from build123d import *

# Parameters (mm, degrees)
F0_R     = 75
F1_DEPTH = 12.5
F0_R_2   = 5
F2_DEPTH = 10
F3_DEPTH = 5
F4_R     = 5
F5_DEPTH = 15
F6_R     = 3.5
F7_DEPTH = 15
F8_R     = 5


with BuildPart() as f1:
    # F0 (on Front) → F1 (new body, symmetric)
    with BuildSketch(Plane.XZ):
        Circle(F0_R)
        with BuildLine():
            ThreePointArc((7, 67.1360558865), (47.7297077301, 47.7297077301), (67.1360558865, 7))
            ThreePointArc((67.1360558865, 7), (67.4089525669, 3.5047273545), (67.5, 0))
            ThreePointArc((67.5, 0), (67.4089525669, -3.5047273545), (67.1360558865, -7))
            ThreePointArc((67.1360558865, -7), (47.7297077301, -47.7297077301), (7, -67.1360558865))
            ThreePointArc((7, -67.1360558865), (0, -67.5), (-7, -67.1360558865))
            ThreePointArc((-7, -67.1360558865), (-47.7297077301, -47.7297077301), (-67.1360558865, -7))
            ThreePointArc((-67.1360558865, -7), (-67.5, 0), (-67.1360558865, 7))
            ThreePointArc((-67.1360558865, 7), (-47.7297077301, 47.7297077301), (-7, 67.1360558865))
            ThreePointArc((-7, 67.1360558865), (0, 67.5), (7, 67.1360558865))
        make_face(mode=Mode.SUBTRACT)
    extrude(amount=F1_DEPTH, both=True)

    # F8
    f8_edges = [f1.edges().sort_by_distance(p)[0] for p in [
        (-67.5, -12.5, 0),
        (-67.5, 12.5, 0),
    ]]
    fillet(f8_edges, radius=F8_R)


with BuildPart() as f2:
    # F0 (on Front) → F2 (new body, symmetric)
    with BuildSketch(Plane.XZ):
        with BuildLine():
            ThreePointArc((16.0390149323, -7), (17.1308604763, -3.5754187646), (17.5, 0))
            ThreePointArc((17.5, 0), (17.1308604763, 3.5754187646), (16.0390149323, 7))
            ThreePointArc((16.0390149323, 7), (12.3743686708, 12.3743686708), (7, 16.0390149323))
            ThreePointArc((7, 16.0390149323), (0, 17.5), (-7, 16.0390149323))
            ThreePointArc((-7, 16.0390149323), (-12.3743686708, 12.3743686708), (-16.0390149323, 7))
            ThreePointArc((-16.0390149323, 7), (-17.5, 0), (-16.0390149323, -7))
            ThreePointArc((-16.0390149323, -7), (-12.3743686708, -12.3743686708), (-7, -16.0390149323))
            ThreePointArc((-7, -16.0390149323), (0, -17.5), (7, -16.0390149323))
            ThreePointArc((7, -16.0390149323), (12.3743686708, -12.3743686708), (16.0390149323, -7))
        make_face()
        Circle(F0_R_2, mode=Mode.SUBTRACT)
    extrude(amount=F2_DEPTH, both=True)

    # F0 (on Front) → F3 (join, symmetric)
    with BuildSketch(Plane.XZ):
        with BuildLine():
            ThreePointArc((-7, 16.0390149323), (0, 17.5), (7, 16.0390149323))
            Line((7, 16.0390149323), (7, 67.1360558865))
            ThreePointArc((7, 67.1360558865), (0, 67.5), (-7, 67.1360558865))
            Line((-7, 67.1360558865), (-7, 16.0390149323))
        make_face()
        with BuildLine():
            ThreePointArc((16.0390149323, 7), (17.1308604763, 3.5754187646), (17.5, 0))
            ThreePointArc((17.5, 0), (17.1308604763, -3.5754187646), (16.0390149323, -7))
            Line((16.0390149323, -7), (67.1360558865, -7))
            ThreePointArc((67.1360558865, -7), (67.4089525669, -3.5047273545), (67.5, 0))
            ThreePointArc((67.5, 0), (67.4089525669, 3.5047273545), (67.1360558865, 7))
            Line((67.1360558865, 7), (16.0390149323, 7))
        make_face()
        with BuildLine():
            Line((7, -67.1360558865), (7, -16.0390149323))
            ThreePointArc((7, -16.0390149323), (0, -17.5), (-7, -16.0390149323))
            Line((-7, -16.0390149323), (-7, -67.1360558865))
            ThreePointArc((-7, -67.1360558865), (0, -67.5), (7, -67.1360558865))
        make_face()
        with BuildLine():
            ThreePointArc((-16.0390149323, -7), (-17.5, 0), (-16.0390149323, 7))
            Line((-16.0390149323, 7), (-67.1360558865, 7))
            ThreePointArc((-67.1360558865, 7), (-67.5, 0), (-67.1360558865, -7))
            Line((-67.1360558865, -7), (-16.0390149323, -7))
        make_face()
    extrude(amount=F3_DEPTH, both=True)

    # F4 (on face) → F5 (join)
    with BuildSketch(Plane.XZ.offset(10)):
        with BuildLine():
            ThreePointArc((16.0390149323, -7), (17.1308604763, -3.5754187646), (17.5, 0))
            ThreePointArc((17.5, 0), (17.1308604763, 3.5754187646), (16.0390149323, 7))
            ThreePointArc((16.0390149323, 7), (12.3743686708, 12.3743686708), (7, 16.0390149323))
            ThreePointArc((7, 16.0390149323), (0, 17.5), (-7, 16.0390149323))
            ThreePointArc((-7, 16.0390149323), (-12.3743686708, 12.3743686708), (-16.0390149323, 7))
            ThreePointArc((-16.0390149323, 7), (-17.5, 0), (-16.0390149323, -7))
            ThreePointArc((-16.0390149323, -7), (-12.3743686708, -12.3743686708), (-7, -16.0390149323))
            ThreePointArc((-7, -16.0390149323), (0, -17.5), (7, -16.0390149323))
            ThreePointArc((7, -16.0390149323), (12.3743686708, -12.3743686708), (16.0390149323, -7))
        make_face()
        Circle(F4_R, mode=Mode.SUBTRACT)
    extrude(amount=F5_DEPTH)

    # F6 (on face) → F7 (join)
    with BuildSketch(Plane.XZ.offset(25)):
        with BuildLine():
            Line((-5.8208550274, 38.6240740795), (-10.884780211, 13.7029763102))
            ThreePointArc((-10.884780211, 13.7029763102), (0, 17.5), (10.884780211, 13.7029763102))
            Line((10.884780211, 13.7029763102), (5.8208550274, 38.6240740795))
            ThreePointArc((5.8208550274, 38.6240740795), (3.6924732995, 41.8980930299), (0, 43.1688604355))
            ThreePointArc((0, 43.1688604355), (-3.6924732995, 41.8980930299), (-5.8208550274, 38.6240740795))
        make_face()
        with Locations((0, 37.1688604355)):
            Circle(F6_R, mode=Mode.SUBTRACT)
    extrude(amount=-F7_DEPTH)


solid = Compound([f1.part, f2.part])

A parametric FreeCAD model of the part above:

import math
import FreeCAD as App
import Part
import Sketcher
from FreeCAD import Vector
Q = App.Units.Quantity


def edges_at(feature, points):
    """Names of the edges that pass closest to the given points."""
    edges = feature.Shape.Edges
    near = lambda p: min(range(len(edges)), key=lambda i: edges[i].distToShape(Part.Vertex(*p))[0])
    return sorted({f"Edge{near(p) + 1}" for p in points})

doc = App.newDocument("Part")
body = doc.addObject("PartDesign::Body", "Body")

# Sketch on XZ plane
sketch1 = body.newObject("Sketcher::SketchObject", "Sketch")
sketch1.AttachmentSupport = (doc.getObject("XZ_Plane"), [""])
sketch1.MapMode = "FlatFace"
sketch1.addGeometry(Part.Circle(Vector(0, 0, 0), Vector(0, 0, 1), 75), False)
sketch1.addGeometry(Part.ArcOfCircle(Part.Circle(Vector(0, 0, 0), Vector(0, 0, 1), 67), math.radians(84.05), math.radians(95.95)), False)
sketch1.addGeometry(Part.ArcOfCircle(Part.Circle(Vector(0, 0, 0), Vector(0, 0, 1), 68), math.radians(0), math.radians(84)), False)
sketch1.addGeometry(Part.ArcOfCircle(Part.Circle(Vector(0, 0, 0), Vector(0, 0, 1), 68), math.radians(-84), math.radians(0)), False)
sketch1.addGeometry(Part.ArcOfCircle(Part.Circle(Vector(0, 0, 0), Vector(0, 0, 1), 67), math.radians(-95.95), math.radians(-84.05)), False)
sketch1.addGeometry(Part.ArcOfCircle(Part.Circle(Vector(0, 0, 0), Vector(0, 0, 1), 68), math.radians(-174), math.radians(-96)), False)
sketch1.addGeometry(Part.ArcOfCircle(Part.Circle(Vector(0, 0, 0), Vector(0, 0, 1), 67), math.radians(174.05), math.radians(185.95)), False)
sketch1.addGeometry(Part.ArcOfCircle(Part.Circle(Vector(0, 0, 0), Vector(0, 0, 1), 68), math.radians(96), math.radians(174)), False)
sketch1.addConstraint(Sketcher.Constraint("Tangent", 1, 1, 2, 2))
sketch1.addConstraint(Sketcher.Constraint("Tangent", 2, 1, 3, 2))
sketch1.addConstraint(Sketcher.Constraint("Tangent", 3, 1, 4, 2))
sketch1.addConstraint(Sketcher.Constraint("Tangent", 4, 1, 5, 2))
sketch1.addConstraint(Sketcher.Constraint("Tangent", 5, 1, 6, 2))
sketch1.addConstraint(Sketcher.Constraint("Tangent", 6, 1, 7, 2))
sketch1.addConstraint(Sketcher.Constraint("Tangent", 7, 1, 1, 2))
sketch1.addConstraint(Sketcher.Constraint("Coincident", 0, 3, -1, 1))
sketch1.addConstraint(Sketcher.Constraint("Coincident", 1, 3, -1, 1))
sketch1.addConstraint(Sketcher.Constraint("Coincident", 3, 3, -1, 1))
sketch1.addConstraint(Sketcher.Constraint("Coincident", 5, 3, -1, 1))
sketch1.addConstraint(Sketcher.Constraint("PointOnObject", 2, 1, -1))
sketch1.addConstraint(Sketcher.Constraint("Horizontal", 3, 1, 4, 1))
sketch1.addConstraint(Sketcher.Constraint("Horizontal", 1, 1, 7, 1))
sketch1.addConstraint(Sketcher.Constraint("Vertical", 1, 1, 3, 1))
sketch1.addConstraint(Sketcher.Constraint("Vertical", 5, 1, 6, 1))
sketch1.addConstraint(Sketcher.Constraint("Diameter", 0, Q("150 mm")))
sketch1.addConstraint(Sketcher.Constraint("Radius", 1, Q("67.5 mm")))
sketch1.addConstraint(Sketcher.Constraint("DistanceX", -1, 1, 1, 1, Q("7 mm")))
sketch1.addConstraint(Sketcher.Constraint("DistanceY", 5, 1, -1, 1, Q("7 mm")))
pad1 = body.newObject("PartDesign::Pad", "Pad")
pad1.Profile = sketch1
pad1.Length = 25
pad1.Midplane = True
doc.recompute()

fillet = body.newObject("PartDesign::Fillet", "Fillet")
fillet.Base = (pad1, edges_at(pad1, [(-67.5, -12.5, 0), (-67.5, 12.5, 0)]))
fillet.Radius = 5
body2 = doc.addObject("PartDesign::Body", "Body001")

# Sketch on XZ plane
sketch2 = body2.newObject("Sketcher::SketchObject", "Sketch001")
sketch2.AttachmentSupport = (doc.getObject("XZ_Plane001"), [""])
sketch2.MapMode = "FlatFace"
sketch2.addGeometry(Part.ArcOfCircle(Part.Circle(Vector(0, 0, 0), Vector(0, 0, 1), 17), math.radians(-24), math.radians(0)), False)
sketch2.addGeometry(Part.ArcOfCircle(Part.Circle(Vector(0, 0, 0), Vector(0, 0, 1), 17), math.radians(0), math.radians(24)), False)
sketch2.addGeometry(Part.ArcOfCircle(Part.Circle(Vector(0, 0, 0), Vector(0, 0, 1), 17), math.radians(24), math.radians(66)), False)
sketch2.addGeometry(Part.ArcOfCircle(Part.Circle(Vector(0, 0, 0), Vector(0, 0, 1), 18), math.radians(66), math.radians(114)), False)
sketch2.addGeometry(Part.ArcOfCircle(Part.Circle(Vector(0, 0, 0), Vector(0, 0, 1), 17), math.radians(114), math.radians(156)), False)
sketch2.addGeometry(Part.ArcOfCircle(Part.Circle(Vector(0, 0, 0), Vector(0, 0, 1), 18), math.radians(156), math.radians(204)), False)
sketch2.addGeometry(Part.ArcOfCircle(Part.Circle(Vector(0, 0, 0), Vector(0, 0, 1), 17), math.radians(-156), math.radians(-114)), False)
sketch2.addGeometry(Part.ArcOfCircle(Part.Circle(Vector(0, 0, 0), Vector(0, 0, 1), 18), math.radians(-114), math.radians(-66)), False)
sketch2.addGeometry(Part.ArcOfCircle(Part.Circle(Vector(0, 0, 0), Vector(0, 0, 1), 17), math.radians(-66), math.radians(-24)), False)
sketch2.addGeometry(Part.Circle(Vector(0, 0, 0), Vector(0, 0, 1), 5), False)
sketch2.addConstraint(Sketcher.Constraint("Tangent", 0, 2, 1, 1))
sketch2.addConstraint(Sketcher.Constraint("Tangent", 1, 2, 2, 1))
sketch2.addConstraint(Sketcher.Constraint("Tangent", 2, 2, 3, 1))
sketch2.addConstraint(Sketcher.Constraint("Tangent", 3, 2, 4, 1))
sketch2.addConstraint(Sketcher.Constraint("Tangent", 4, 2, 5, 1))
sketch2.addConstraint(Sketcher.Constraint("Tangent", 5, 2, 6, 1))
sketch2.addConstraint(Sketcher.Constraint("Tangent", 6, 2, 7, 1))
sketch2.addConstraint(Sketcher.Constraint("Tangent", 7, 2, 8, 1))
sketch2.addConstraint(Sketcher.Constraint("Tangent", 8, 2, 0, 1))
sketch2.addConstraint(Sketcher.Constraint("Coincident", 0, 3, -1, 1))
sketch2.addConstraint(Sketcher.Constraint("Coincident", 2, 3, -1, 1))
sketch2.addConstraint(Sketcher.Constraint("Coincident", 4, 3, -1, 1))
sketch2.addConstraint(Sketcher.Constraint("Coincident", 6, 3, -1, 1))
sketch2.addConstraint(Sketcher.Constraint("Coincident", 9, 3, -1, 1))
sketch2.addConstraint(Sketcher.Constraint("PointOnObject", 0, 2, -1))
sketch2.addConstraint(Sketcher.Constraint("Horizontal", 2, 2, 3, 2))
sketch2.addConstraint(Sketcher.Constraint("Horizontal", 1, 2, 4, 2))
sketch2.addConstraint(Sketcher.Constraint("Horizontal", 6, 2, 7, 2))
sketch2.addConstraint(Sketcher.Constraint("Horizontal", 5, 2, 8, 2))
sketch2.addConstraint(Sketcher.Constraint("Vertical", 4, 2, 5, 2))
sketch2.addConstraint(Sketcher.Constraint("Vertical", 3, 2, 6, 2))
sketch2.addConstraint(Sketcher.Constraint("Diameter", 9, Q("10 mm")))
sketch2.addConstraint(Sketcher.Constraint("Radius", 0, Q("17.5 mm")))
sketch2.addConstraint(Sketcher.Constraint("DistanceY", -1, 1, 1, 2, Q("7 mm")))
sketch2.addConstraint(Sketcher.Constraint("DistanceX", -1, 1, 2, 2, Q("7 mm")))
pad2 = body2.newObject("PartDesign::Pad", "Pad001")
pad2.Profile = sketch2
pad2.Length = 20
pad2.Midplane = True

# Sketch on XZ plane
sketch3 = body2.newObject("Sketcher::SketchObject", "Sketch002")
sketch3.AttachmentSupport = (doc.getObject("XZ_Plane001"), [""])
sketch3.MapMode = "FlatFace"
sketch3.addGeometry(Part.ArcOfCircle(Part.Circle(Vector(0, 0, 0), Vector(0, 0, 1), 18), math.radians(66), math.radians(114)), False)
sketch3.addGeometry(Part.LineSegment(Vector(7, 16, 0), Vector(7, 67, 0)), False)
sketch3.addGeometry(Part.ArcOfCircle(Part.Circle(Vector(0, 0, 0), Vector(0, 0, 1), 67), math.radians(84.05), math.radians(95.95)), False)
sketch3.addGeometry(Part.LineSegment(Vector(-7, 67, 0), Vector(-7, 16, 0)), False)
sketch3.addGeometry(Part.ArcOfCircle(Part.Circle(Vector(0, 0, 0), Vector(0, 0, 1), 17), math.radians(0), math.radians(24)), False)
sketch3.addGeometry(Part.ArcOfCircle(Part.Circle(Vector(0, 0, 0), Vector(0, 0, 1), 17), math.radians(-24), math.radians(0)), False)
sketch3.addGeometry(Part.LineSegment(Vector(16, -7, 0), Vector(67, -7, 0)), False)
sketch3.addGeometry(Part.ArcOfCircle(Part.Circle(Vector(0, 0, 0), Vector(0, 0, 1), 68), math.radians(-5.95), math.radians(0)), False)
sketch3.addGeometry(Part.ArcOfCircle(Part.Circle(Vector(0, 0, 0), Vector(0, 0, 1), 68), math.radians(0), math.radians(5.95)), False)
sketch3.addGeometry(Part.LineSegment(Vector(67, 7, 0), Vector(16, 7, 0)), False)
sketch3.addGeometry(Part.LineSegment(Vector(7, -67, 0), Vector(7, -16, 0)), False)
sketch3.addGeometry(Part.ArcOfCircle(Part.Circle(Vector(0, 0, 0), Vector(0, 0, 1), 18), math.radians(-114), math.radians(-66)), False)
sketch3.addGeometry(Part.LineSegment(Vector(-7, -16, 0), Vector(-7, -67, 0)), False)
sketch3.addGeometry(Part.ArcOfCircle(Part.Circle(Vector(0, 0, 0), Vector(0, 0, 1), 67), math.radians(-95.95), math.radians(-84.05)), False)
sketch3.addGeometry(Part.ArcOfCircle(Part.Circle(Vector(0, 0, 0), Vector(0, 0, 1), 18), math.radians(156), math.radians(204)), False)
sketch3.addGeometry(Part.LineSegment(Vector(-16, 7, 0), Vector(-67, 7, 0)), False)
sketch3.addGeometry(Part.ArcOfCircle(Part.Circle(Vector(0, 0, 0), Vector(0, 0, 1), 67), math.radians(174.05), math.radians(185.95)), False)
sketch3.addGeometry(Part.LineSegment(Vector(-67, -7, 0), Vector(-16, -7, 0)), False)
sketch3.addConstraint(Sketcher.Constraint("Coincident", 0, 1, 1, 1))
sketch3.addConstraint(Sketcher.Constraint("Coincident", 1, 2, 2, 1))
sketch3.addConstraint(Sketcher.Constraint("Coincident", 2, 2, 3, 1))
sketch3.addConstraint(Sketcher.Constraint("Coincident", 3, 2, 0, 2))
sketch3.addConstraint(Sketcher.Constraint("Tangent", 4, 1, 5, 2))
sketch3.addConstraint(Sketcher.Constraint("Coincident", 5, 1, 6, 1))
sketch3.addConstraint(Sketcher.Constraint("Coincident", 6, 2, 7, 1))
sketch3.addConstraint(Sketcher.Constraint("Tangent", 7, 2, 8, 1))
sketch3.addConstraint(Sketcher.Constraint("Coincident", 8, 2, 9, 1))
sketch3.addConstraint(Sketcher.Constraint("Coincident", 9, 2, 4, 2))
sketch3.addConstraint(Sketcher.Constraint("Coincident", 10, 2, 11, 2))
sketch3.addConstraint(Sketcher.Constraint("Coincident", 11, 1, 12, 1))
sketch3.addConstraint(Sketcher.Constraint("Coincident", 12, 2, 13, 1))
sketch3.addConstraint(Sketcher.Constraint("Coincident", 13, 2, 10, 1))
sketch3.addConstraint(Sketcher.Constraint("Coincident", 14, 1, 15, 1))
sketch3.addConstraint(Sketcher.Constraint("Coincident", 15, 2, 16, 1))
sketch3.addConstraint(Sketcher.Constraint("Coincident", 16, 2, 17, 1))
sketch3.addConstraint(Sketcher.Constraint("Coincident", 17, 2, 14, 2))
sketch3.addConstraint(Sketcher.Constraint("Vertical", 1))
sketch3.addConstraint(Sketcher.Constraint("Vertical", 3))
sketch3.addConstraint(Sketcher.Constraint("Horizontal", 6))
sketch3.addConstraint(Sketcher.Constraint("Horizontal", 9))
sketch3.addConstraint(Sketcher.Constraint("Vertical", 10))
sketch3.addConstraint(Sketcher.Constraint("Vertical", 12))
sketch3.addConstraint(Sketcher.Constraint("Horizontal", 15))
sketch3.addConstraint(Sketcher.Constraint("Horizontal", 17))
sketch3.addConstraint(Sketcher.Constraint("Coincident", 0, 3, -1, 1))
sketch3.addConstraint(Sketcher.Constraint("Coincident", 2, 3, -1, 1))
sketch3.addConstraint(Sketcher.Constraint("Coincident", 4, 3, -1, 1))
sketch3.addConstraint(Sketcher.Constraint("Coincident", 7, 3, -1, 1))
sketch3.addConstraint(Sketcher.Constraint("Coincident", 11, 3, -1, 1))
sketch3.addConstraint(Sketcher.Constraint("Coincident", 13, 3, -1, 1))
sketch3.addConstraint(Sketcher.Constraint("Coincident", 14, 3, -1, 1))
sketch3.addConstraint(Sketcher.Constraint("Coincident", 16, 3, -1, 1))
sketch3.addConstraint(Sketcher.Constraint("Equal", 0, 4))
sketch3.addConstraint(Sketcher.Constraint("Equal", 4, 5))
sketch3.addConstraint(Sketcher.Constraint("Equal", 2, 7))
sketch3.addConstraint(Sketcher.Constraint("Equal", 7, 8))
sketch3.addConstraint(Sketcher.Constraint("Equal", 5, 11))
sketch3.addConstraint(Sketcher.Constraint("Equal", 8, 13))
sketch3.addConstraint(Sketcher.Constraint("Equal", 11, 14))
sketch3.addConstraint(Sketcher.Constraint("Equal", 13, 16))
sketch3.addConstraint(Sketcher.Constraint("PointOnObject", 4, 1, -1))
sketch3.addConstraint(Sketcher.Constraint("PointOnObject", 7, 2, -1))
sketch3.addConstraint(Sketcher.Constraint("Horizontal", 1, 2, 2, 2))
sketch3.addConstraint(Sketcher.Constraint("Horizontal", 10, 2, 11, 1))
sketch3.addConstraint(Sketcher.Constraint("Horizontal", 9, 2, 14, 1))
sketch3.addConstraint(Sketcher.Constraint("Horizontal", 6, 2, 16, 2))
sketch3.addConstraint(Sketcher.Constraint("Vertical", 6, 2, 8, 2))
sketch3.addConstraint(Sketcher.Constraint("Vertical", 1, 2, 10, 2))
sketch3.addConstraint(Sketcher.Constraint("Equal", 17, 1))
sketch3.addConstraint(Sketcher.Constraint("Radius", 0, Q("17.5 mm")))
sketch3.addConstraint(Sketcher.Constraint("Radius", 2, Q("67.5 mm")))
sketch3.addConstraint(Sketcher.Constraint("DistanceX", -1, 1, 0, 1, Q("7 mm")))
pad3 = body2.newObject("PartDesign::Pad", "Pad002")
pad3.Profile = sketch3
pad3.Length = 10
pad3.Midplane = True

# Sketch on XZ plane
sketch4 = body2.newObject("Sketcher::SketchObject", "Sketch003")
sketch4.AttachmentSupport = (doc.getObject("XZ_Plane001"), [""])
sketch4.MapMode = "FlatFace"
sketch4.AttachmentOffset = App.Placement(Vector(0, 0, 10), App.Rotation())
sketch4.addGeometry(Part.ArcOfCircle(Part.Circle(Vector(0, 0, 0), Vector(0, 0, 1), 17), math.radians(-24), math.radians(0)), False)
sketch4.addGeometry(Part.ArcOfCircle(Part.Circle(Vector(0, 0, 0), Vector(0, 0, 1), 17), math.radians(0), math.radians(24)), False)
sketch4.addGeometry(Part.ArcOfCircle(Part.Circle(Vector(0, 0, 0), Vector(0, 0, 1), 17), math.radians(24), math.radians(66)), False)
sketch4.addGeometry(Part.ArcOfCircle(Part.Circle(Vector(0, 0, 0), Vector(0, 0, 1), 18), math.radians(66), math.radians(114)), False)
sketch4.addGeometry(Part.ArcOfCircle(Part.Circle(Vector(0, 0, 0), Vector(0, 0, 1), 17), math.radians(114), math.radians(156)), False)
sketch4.addGeometry(Part.ArcOfCircle(Part.Circle(Vector(0, 0, 0), Vector(0, 0, 1), 18), math.radians(156), math.radians(204)), False)
sketch4.addGeometry(Part.ArcOfCircle(Part.Circle(Vector(0, 0, 0), Vector(0, 0, 1), 17), math.radians(-156), math.radians(-114)), False)
sketch4.addGeometry(Part.ArcOfCircle(Part.Circle(Vector(0, 0, 0), Vector(0, 0, 1), 18), math.radians(-114), math.radians(-66)), False)
sketch4.addGeometry(Part.ArcOfCircle(Part.Circle(Vector(0, 0, 0), Vector(0, 0, 1), 17), math.radians(-66), math.radians(-24)), False)
sketch4.addGeometry(Part.Circle(Vector(0, 0, 0), Vector(0, 0, 1), 5), False)
sketch4.addConstraint(Sketcher.Constraint("Tangent", 0, 2, 1, 1))
sketch4.addConstraint(Sketcher.Constraint("Tangent", 1, 2, 2, 1))
sketch4.addConstraint(Sketcher.Constraint("Tangent", 2, 2, 3, 1))
sketch4.addConstraint(Sketcher.Constraint("Tangent", 3, 2, 4, 1))
sketch4.addConstraint(Sketcher.Constraint("Tangent", 4, 2, 5, 1))
sketch4.addConstraint(Sketcher.Constraint("Tangent", 5, 2, 6, 1))
sketch4.addConstraint(Sketcher.Constraint("Tangent", 6, 2, 7, 1))
sketch4.addConstraint(Sketcher.Constraint("Tangent", 7, 2, 8, 1))
sketch4.addConstraint(Sketcher.Constraint("Tangent", 8, 2, 0, 1))
sketch4.addConstraint(Sketcher.Constraint("Coincident", 0, 3, -1, 1))
sketch4.addConstraint(Sketcher.Constraint("Coincident", 2, 3, -1, 1))
sketch4.addConstraint(Sketcher.Constraint("Coincident", 4, 3, -1, 1))
sketch4.addConstraint(Sketcher.Constraint("Coincident", 6, 3, -1, 1))
sketch4.addConstraint(Sketcher.Constraint("Coincident", 9, 3, -1, 1))
sketch4.addConstraint(Sketcher.Constraint("PointOnObject", 0, 2, -1))
sketch4.addConstraint(Sketcher.Constraint("Horizontal", 2, 2, 3, 2))
sketch4.addConstraint(Sketcher.Constraint("Horizontal", 1, 2, 4, 2))
sketch4.addConstraint(Sketcher.Constraint("Horizontal", 6, 2, 7, 2))
sketch4.addConstraint(Sketcher.Constraint("Horizontal", 5, 2, 8, 2))
sketch4.addConstraint(Sketcher.Constraint("Vertical", 4, 2, 5, 2))
sketch4.addConstraint(Sketcher.Constraint("Vertical", 3, 2, 6, 2))
sketch4.addConstraint(Sketcher.Constraint("Diameter", 9, Q("10 mm")))
sketch4.addConstraint(Sketcher.Constraint("Radius", 0, Q("17.5 mm")))
sketch4.addConstraint(Sketcher.Constraint("DistanceY", -1, 1, 1, 2, Q("7 mm")))
sketch4.addConstraint(Sketcher.Constraint("DistanceX", -1, 1, 2, 2, Q("7 mm")))
pad4 = body2.newObject("PartDesign::Pad", "Pad003")
pad4.Profile = sketch4
pad4.Length = 15

# Sketch on XZ plane
sketch5 = body2.newObject("Sketcher::SketchObject", "Sketch004")
sketch5.AttachmentSupport = (doc.getObject("XZ_Plane001"), [""])
sketch5.MapMode = "FlatFace"
sketch5.AttachmentOffset = App.Placement(Vector(0, 0, 25), App.Rotation())
sketch5.addGeometry(Part.LineSegment(Vector(-5.8, 38.6, 0), Vector(-10.9, 13.7, 0)), False)
sketch5.addGeometry(Part.ArcOfCircle(Part.Circle(Vector(0, 0, 0), Vector(0, 0, 1), 17.5), math.radians(52), math.radians(128)), False)
sketch5.addGeometry(Part.LineSegment(Vector(10.9, 13.7, 0), Vector(5.8, 38.6, 0)), False)
sketch5.addGeometry(Part.ArcOfCircle(Part.Circle(Vector(0, 37.2, 0), Vector(0, 0, 1), 6), math.radians(14), math.radians(90)), False)
sketch5.addGeometry(Part.ArcOfCircle(Part.Circle(Vector(0, 37.2, 0), Vector(0, 0, 1), 6), math.radians(90), math.radians(166)), False)
sketch5.addGeometry(Part.Circle(Vector(0, 37.2, 0), Vector(0, 0, 1), 3.5), False)
sketch5.addConstraint(Sketcher.Constraint("Coincident", 0, 2, 1, 2))
sketch5.addConstraint(Sketcher.Constraint("Coincident", 1, 1, 2, 1))
sketch5.addConstraint(Sketcher.Constraint("Coincident", 2, 2, 3, 1))
sketch5.addConstraint(Sketcher.Constraint("Tangent", 3, 2, 4, 1))
sketch5.addConstraint(Sketcher.Constraint("Coincident", 4, 2, 0, 1))
sketch5.addConstraint(Sketcher.Constraint("Coincident", 1, 3, -1, 1))
sketch5.addConstraint(Sketcher.Constraint("Coincident", 5, 3, 3, 3))
sketch5.addConstraint(Sketcher.Constraint("Equal", 3, 4))
sketch5.addConstraint(Sketcher.Constraint("Symmetric", 2, 2, 4, 2, -2))
sketch5.addConstraint(Sketcher.Constraint("PointOnObject", 3, 2, -2))
sketch5.addConstraint(Sketcher.Constraint("Horizontal", 0, 2, 1, 1))
sketch5.addConstraint(Sketcher.Constraint("Diameter", 5, Q("7 mm")))
sketch5.addConstraint(Sketcher.Constraint("Radius", 3, Q("6 mm")))
sketch5.addConstraint(Sketcher.Constraint("Radius", 1, Q("17.5 mm")))
sketch5.addConstraint(Sketcher.Constraint("DistanceY", -1, 1, 3, 3, Q("37.16886 mm")))
sketch5.addConstraint(Sketcher.Constraint("DistanceX", 0, 2, -1, 1, Q("10.88478 mm")))
sketch5.addConstraint(Sketcher.Constraint("DistanceX", 4, 2, 2, 2, Q("11.64171 mm")))
pad5 = body2.newObject("PartDesign::Pad", "Pad004")
pad5.Profile = sketch5
pad5.Length = 15
pad5.Reversed = True

doc.recompute()
